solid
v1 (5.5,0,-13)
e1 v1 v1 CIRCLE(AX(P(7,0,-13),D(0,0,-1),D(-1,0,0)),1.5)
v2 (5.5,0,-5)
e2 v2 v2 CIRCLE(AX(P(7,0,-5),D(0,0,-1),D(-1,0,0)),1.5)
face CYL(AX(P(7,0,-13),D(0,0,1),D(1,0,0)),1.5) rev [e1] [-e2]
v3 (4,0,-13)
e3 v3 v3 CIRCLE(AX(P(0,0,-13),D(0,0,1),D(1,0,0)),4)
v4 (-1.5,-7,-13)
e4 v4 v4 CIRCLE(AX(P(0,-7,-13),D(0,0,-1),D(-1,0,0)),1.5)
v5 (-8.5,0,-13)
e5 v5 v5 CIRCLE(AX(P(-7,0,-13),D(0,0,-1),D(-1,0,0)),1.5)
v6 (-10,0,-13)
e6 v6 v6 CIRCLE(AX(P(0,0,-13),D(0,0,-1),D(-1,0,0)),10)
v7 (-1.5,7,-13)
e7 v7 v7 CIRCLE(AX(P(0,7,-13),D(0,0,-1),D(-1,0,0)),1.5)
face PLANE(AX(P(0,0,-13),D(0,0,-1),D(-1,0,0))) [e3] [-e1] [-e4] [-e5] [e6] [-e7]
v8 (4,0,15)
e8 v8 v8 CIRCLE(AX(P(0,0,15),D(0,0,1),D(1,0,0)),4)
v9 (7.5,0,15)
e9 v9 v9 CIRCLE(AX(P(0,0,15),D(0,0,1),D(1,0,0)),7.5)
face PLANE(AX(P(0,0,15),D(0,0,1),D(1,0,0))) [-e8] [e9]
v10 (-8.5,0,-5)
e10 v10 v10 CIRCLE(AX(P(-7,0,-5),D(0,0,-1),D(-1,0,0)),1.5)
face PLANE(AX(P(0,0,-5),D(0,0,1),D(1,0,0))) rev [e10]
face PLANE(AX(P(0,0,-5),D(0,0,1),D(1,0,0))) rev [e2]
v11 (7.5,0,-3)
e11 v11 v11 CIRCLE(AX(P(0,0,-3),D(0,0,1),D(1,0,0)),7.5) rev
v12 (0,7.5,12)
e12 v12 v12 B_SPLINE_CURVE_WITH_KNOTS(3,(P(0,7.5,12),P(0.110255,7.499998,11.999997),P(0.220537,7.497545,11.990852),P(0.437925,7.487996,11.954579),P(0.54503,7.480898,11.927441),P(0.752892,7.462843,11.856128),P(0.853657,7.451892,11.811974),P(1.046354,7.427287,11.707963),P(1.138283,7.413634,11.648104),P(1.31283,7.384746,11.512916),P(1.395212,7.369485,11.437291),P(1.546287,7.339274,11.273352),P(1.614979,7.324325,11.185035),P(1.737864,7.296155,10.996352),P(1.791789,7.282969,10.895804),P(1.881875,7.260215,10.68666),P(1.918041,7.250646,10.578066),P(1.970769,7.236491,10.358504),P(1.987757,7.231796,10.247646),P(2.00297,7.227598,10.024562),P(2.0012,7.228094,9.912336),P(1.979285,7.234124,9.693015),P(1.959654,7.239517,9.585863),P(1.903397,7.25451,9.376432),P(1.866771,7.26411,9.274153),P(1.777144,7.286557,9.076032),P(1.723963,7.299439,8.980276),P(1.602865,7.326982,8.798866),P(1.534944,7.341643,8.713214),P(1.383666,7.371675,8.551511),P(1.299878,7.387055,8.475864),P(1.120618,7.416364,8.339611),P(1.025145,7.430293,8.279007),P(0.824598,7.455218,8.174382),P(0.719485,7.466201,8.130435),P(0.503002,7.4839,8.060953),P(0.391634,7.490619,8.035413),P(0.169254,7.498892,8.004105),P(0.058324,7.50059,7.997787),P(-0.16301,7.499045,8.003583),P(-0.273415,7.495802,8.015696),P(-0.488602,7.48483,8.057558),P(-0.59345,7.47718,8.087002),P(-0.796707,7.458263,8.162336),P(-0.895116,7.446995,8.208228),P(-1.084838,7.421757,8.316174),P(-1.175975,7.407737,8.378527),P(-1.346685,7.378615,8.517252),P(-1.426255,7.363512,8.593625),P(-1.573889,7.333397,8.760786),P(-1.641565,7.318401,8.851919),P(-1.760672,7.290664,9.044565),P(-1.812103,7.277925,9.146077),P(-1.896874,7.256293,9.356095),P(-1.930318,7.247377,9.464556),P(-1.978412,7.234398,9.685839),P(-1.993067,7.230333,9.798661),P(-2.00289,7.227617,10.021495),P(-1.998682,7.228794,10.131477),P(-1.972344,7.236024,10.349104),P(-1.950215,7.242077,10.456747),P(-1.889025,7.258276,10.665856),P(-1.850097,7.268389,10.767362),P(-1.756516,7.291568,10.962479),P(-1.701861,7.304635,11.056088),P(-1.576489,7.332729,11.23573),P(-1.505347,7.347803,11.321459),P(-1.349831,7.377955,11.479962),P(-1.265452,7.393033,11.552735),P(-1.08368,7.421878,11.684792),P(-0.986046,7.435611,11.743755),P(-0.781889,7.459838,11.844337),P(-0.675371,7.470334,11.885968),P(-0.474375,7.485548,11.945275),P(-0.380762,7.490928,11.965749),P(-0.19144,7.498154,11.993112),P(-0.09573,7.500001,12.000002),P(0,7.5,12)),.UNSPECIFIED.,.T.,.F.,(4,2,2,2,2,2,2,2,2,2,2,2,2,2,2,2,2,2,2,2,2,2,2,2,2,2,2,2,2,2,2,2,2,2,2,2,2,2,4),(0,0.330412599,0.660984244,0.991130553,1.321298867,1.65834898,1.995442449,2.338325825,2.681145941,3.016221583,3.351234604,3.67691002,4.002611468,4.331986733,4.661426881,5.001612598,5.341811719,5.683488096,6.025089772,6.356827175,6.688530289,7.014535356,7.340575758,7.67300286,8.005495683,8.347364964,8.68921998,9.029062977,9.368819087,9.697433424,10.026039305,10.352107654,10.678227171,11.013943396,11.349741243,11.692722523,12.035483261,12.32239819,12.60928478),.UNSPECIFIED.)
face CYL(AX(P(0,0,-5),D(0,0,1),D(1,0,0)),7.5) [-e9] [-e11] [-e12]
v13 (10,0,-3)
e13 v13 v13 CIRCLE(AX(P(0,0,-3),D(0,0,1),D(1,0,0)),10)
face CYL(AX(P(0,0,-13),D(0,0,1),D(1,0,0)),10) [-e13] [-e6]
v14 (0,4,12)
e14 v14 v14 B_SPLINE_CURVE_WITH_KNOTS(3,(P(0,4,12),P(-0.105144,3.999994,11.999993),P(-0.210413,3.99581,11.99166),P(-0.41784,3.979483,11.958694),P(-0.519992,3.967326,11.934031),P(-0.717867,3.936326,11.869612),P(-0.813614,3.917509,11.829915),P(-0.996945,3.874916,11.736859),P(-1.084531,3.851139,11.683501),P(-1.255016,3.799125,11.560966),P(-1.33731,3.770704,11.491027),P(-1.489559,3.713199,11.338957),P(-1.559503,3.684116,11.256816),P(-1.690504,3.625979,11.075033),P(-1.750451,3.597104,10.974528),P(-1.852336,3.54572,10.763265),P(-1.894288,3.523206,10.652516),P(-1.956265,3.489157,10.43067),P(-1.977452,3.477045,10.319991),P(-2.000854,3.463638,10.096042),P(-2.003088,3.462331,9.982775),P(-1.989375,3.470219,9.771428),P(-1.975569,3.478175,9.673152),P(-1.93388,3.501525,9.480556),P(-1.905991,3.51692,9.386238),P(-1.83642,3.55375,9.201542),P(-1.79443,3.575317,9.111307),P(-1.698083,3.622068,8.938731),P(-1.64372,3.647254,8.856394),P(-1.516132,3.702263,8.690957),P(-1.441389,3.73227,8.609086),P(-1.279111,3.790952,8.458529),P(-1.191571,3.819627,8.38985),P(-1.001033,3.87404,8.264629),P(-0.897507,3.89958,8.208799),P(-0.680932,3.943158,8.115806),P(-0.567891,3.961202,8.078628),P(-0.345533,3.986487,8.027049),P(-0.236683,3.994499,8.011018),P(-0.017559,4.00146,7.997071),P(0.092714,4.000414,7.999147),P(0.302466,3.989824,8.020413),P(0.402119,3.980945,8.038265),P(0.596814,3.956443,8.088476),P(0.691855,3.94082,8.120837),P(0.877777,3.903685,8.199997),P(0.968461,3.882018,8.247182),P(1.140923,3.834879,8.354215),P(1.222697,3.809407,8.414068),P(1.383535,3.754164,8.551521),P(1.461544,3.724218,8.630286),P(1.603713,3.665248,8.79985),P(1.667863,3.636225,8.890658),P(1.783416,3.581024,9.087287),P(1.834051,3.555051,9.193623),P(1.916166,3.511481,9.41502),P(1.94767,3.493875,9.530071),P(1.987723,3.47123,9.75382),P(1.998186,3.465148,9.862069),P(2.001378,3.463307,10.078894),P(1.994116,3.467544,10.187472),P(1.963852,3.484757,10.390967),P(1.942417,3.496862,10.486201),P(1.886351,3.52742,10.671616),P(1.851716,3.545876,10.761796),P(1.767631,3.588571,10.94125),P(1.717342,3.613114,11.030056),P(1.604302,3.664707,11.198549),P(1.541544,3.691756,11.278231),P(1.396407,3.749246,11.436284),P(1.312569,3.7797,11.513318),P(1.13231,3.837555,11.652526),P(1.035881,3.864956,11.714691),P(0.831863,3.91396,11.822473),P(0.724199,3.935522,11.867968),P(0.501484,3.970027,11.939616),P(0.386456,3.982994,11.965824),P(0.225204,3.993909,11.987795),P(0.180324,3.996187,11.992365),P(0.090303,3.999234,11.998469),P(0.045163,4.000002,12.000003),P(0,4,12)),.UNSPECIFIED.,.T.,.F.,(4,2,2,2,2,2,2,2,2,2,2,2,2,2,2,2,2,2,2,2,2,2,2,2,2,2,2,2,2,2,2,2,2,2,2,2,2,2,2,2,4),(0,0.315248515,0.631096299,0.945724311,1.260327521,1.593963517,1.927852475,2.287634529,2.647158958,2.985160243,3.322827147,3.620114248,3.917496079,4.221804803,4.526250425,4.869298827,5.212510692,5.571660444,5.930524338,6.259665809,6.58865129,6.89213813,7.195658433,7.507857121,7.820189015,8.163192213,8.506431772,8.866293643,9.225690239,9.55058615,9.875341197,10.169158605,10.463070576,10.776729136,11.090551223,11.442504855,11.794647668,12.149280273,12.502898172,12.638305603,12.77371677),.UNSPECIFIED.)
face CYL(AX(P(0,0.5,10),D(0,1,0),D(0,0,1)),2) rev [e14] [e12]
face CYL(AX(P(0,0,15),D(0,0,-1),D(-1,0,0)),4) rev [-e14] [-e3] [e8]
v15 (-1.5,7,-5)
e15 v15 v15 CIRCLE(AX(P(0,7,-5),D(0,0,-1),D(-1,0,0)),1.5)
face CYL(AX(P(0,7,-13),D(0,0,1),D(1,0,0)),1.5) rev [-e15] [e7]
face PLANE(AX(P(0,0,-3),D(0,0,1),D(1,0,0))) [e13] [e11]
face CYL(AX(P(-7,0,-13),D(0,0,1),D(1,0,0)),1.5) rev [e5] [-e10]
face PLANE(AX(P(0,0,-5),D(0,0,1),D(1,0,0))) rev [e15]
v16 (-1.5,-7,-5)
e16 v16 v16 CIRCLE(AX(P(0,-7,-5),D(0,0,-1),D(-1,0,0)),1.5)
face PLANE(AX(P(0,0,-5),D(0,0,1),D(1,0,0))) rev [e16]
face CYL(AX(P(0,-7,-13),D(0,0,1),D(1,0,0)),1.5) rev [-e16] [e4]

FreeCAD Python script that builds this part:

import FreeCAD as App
import Part
import Sketcher

doc = App.newDocument("Part")
params = doc.addObject("Spreadsheet::Sheet", "Params")
for row, (alias, value) in enumerate([
    ("sketch1_diameter", "15 mm"),
    ("pad1_length", "5 mm"),
    ("sketch2_diameter", "20 mm"),
    ("sketch2_diameter2", "3 mm"),
    ("pad2_length", "8 mm"),
    ("sketch3_diameter", "15 mm"),
    ("sketch3_diameter2", "8 mm"),
    ("pad3_length", "15 mm"),
    ("sketch4_diameter", "4 mm"),
    ("pocket1_length", "7 mm"),
    ("sketch5_diameter", "8 mm"),
    ("sketch6_diameter", "20 mm"),
    ("sketch6_diameter2", "8 mm"),
    ("pad4_length", "2 mm"),
], start=1):
    params.set(f"A{row}", alias)
    params.set(f"B{row}", "=" + value)
    params.setAlias(f"B{row}", alias)

body = doc.addObject("PartDesign::Body", "Body")

# Sketch on XY plane
sketch1 = doc.addObject("Sketcher::SketchObject", "Sketch")
body.addObject(sketch1)
sketch1.AttachmentSupport = (doc.XY_Plane, [""])
sketch1.MapMode = "FlatFace"
sketch1.addGeometry(Part.Circle(App.Vector(0, 0, 0), App.Vector(0, 0, 1), 7.5), False)
sketch1.addConstraint([
    Sketcher.Constraint("Coincident", 0, 3, -1, 1),
    Sketcher.Constraint("Diameter", 0, 15.0),
])
sketch1.setExpression("Constraints[1]", "Params.sketch1_diameter")
pad1 = doc.addObject("PartDesign::Pad", "Pad")
body.addObject(pad1)
pad1.Profile = sketch1
pad1.setExpression("Length", "Params.pad1_length")
pad1.Reversed = True

# Sketch on XY plane
sketch2 = doc.addObject("Sketcher::SketchObject", "Sketch001")
body.addObject(sketch2)
sketch2.AttachmentSupport = (doc.XY_Plane, [""])
sketch2.MapMode = "FlatFace"
sketch2.AttachmentOffset = App.Placement(App.Vector(0, 0, -5), App.Rotation())
sketch2.addGeometry([
    Part.Circle(App.Vector(0, 0, 0), App.Vector(0, 0, 1), 10),  # 0
    Part.Circle(App.Vector(0, -7, 0), App.Vector(0, 0, 1), 1.5),  # 1
    Part.Circle(App.Vector(7, 0, 0), App.Vector(0, 0, 1), 1.5),  # 2
    Part.Circle(App.Vector(-7, 0, 0), App.Vector(0, 0, 1), 1.5),  # 3
    Part.Circle(App.Vector(0, 7, 0), App.Vector(0, 0, 1), 1.5),  # 4
], False)
sketch2.addConstraint([
    Sketcher.Constraint("Coincident", 0, 3, -1, 1),
    Sketcher.Constraint("Equal", 1, 2),
    Sketcher.Constraint("Equal", 2, 3),
    Sketcher.Constraint("Equal", 3, 4),
    Sketcher.Constraint("Symmetric", 2, 3, 3, 3, -1, 1),
    Sketcher.Constraint("Symmetric", 1, 3, 4, 3, -1, 1),
    Sketcher.Constraint("PointOnObject", 1, 3, -2),
    Sketcher.Constraint("PointOnObject", 2, 3, -1),
    Sketcher.Constraint("Diameter", 0, 20.0),
    Sketcher.Constraint("Diameter", 1, 3.0),
    Sketcher.Constraint("DistanceY", 1, 3, -1, 1, 7.0),
    Sketcher.Constraint("DistanceX", -1, 1, 2, 3, 7.0),
])
sketch2.setExpression("Constraints[8]", "Params.sketch2_diameter")
sketch2.setExpression("Constraints[9]", "Params.sketch2_diameter2")
pad2 = doc.addObject("PartDesign::Pad", "Pad001")
body.addObject(pad2)
pad2.Profile = sketch2
pad2.setExpression("Length", "Params.pad2_length")
pad2.Reversed = True

# Sketch on XY plane
sketch3 = doc.addObject("Sketcher::SketchObject", "Sketch002")
body.addObject(sketch3)
sketch3.AttachmentSupport = (doc.XY_Plane, [""])
sketch3.MapMode = "FlatFace"
sketch3.AttachmentOffset = App.Placement(App.Vector(0, 0, 15), App.Rotation())
sketch3.addGeometry([
    Part.Circle(App.Vector(0, 0, 0), App.Vector(0, 0, 1), 7.5),
    Part.Circle(App.Vector(0, 0, 0), App.Vector(0, 0, 1), 4),
], False)
sketch3.addConstraint([
    Sketcher.Constraint("Coincident", 0, 3, -1, 1),
    Sketcher.Constraint("Coincident", 1, 3, -1, 1),
    Sketcher.Constraint("Diameter", 0, 15.0),
    Sketcher.Constraint("Diameter", 1, 8.0),
])
sketch3.setExpression("Constraints[2]", "Params.sketch3_diameter")
sketch3.setExpression("Constraints[3]", "Params.sketch3_diameter2")
pad3 = doc.addObject("PartDesign::Pad", "Pad002")
body.addObject(pad3)
pad3.Profile = sketch3
pad3.setExpression("Length", "Params.pad3_length")
pad3.Reversed = True

# Sketch on XZ plane
sketch4 = doc.addObject("Sketcher::SketchObject", "Sketch003")
body.addObject(sketch4)
sketch4.AttachmentSupport = (doc.XZ_Plane, [""])
sketch4.MapMode = "FlatFace"
sketch4.AttachmentOffset = App.Placement(App.Vector(0, 0, -7.5), App.Rotation())
sketch4.addGeometry(Part.Circle(App.Vector(0, 10, 0), App.Vector(0, 0, 1), 2), False)
sketch4.addConstraint([
    Sketcher.Constraint("PointOnObject", 0, 3, -2),
    Sketcher.Constraint("Diameter", 0, 4.0),
    Sketcher.Constraint("DistanceY", -1, 1, 0, 3, 10.0),
])
sketch4.setExpression("Constraints[1]", "Params.sketch4_diameter")
pocket1 = doc.addObject("PartDesign::Pocket", "Pocket")
body.addObject(pocket1)
pocket1.Profile = sketch4
pocket1.setExpression("Length", "Params.pocket1_length")
pocket1.Reversed = True

# Sketch on XY plane
sketch5 = doc.addObject("Sketcher::SketchObject", "Sketch004")
body.addObject(sketch5)
sketch5.AttachmentSupport = (doc.XY_Plane, [""])
sketch5.MapMode = "FlatFace"
sketch5.AttachmentOffset = App.Placement(App.Vector(0, 0, 15), App.Rotation())
sketch5.addGeometry(Part.Circle(App.Vector(0, 0, 0), App.Vector(0, 0, 1), 4), False)
sketch5.addConstraint([
    Sketcher.Constraint("Coincident", 0, 3, -1, 1),
    Sketcher.Constraint("Diameter", 0, 8.0),
])
sketch5.setExpression("Constraints[1]", "Params.sketch5_diameter")
pocket2 = doc.addObject("PartDesign::Pocket", "Pocket001")
body.addObject(pocket2)
pocket2.Profile = sketch5
pocket2.Type = "ThroughAll"

# Sketch on XY plane
sketch6 = doc.addObject("Sketcher::SketchObject", "Sketch005")
body.addObject(sketch6)
sketch6.AttachmentSupport = (doc.XY_Plane, [""])
sketch6.MapMode = "FlatFace"
sketch6.AttachmentOffset = App.Placement(App.Vector(0, 0, -3), App.Rotation())
sketch6.addGeometry([
    Part.Circle(App.Vector(0, 0, 0), App.Vector(0, 0, 1), 10),
    Part.Circle(App.Vector(0, 0, 0), App.Vector(0, 0, 1), 4),
], False)
sketch6.addConstraint([
    Sketcher.Constraint("Coincident", 0, 3, -1, 1),
    Sketcher.Constraint("Coincident", 1, 3, -1, 1),
    Sketcher.Constraint("Diameter", 0, 20.0),
    Sketcher.Constraint("Diameter", 1, 8.0),
])
sketch6.setExpression("Constraints[2]", "Params.sketch6_diameter")
sketch6.setExpression("Constraints[3]", "Params.sketch6_diameter2")
pad4 = doc.addObject("PartDesign::Pad", "Pad003")
body.addObject(pad4)
pad4.Profile = sketch6
pad4.setExpression("Length", "Params.pad4_length")
pad4.Reversed = True

doc.recompute()
